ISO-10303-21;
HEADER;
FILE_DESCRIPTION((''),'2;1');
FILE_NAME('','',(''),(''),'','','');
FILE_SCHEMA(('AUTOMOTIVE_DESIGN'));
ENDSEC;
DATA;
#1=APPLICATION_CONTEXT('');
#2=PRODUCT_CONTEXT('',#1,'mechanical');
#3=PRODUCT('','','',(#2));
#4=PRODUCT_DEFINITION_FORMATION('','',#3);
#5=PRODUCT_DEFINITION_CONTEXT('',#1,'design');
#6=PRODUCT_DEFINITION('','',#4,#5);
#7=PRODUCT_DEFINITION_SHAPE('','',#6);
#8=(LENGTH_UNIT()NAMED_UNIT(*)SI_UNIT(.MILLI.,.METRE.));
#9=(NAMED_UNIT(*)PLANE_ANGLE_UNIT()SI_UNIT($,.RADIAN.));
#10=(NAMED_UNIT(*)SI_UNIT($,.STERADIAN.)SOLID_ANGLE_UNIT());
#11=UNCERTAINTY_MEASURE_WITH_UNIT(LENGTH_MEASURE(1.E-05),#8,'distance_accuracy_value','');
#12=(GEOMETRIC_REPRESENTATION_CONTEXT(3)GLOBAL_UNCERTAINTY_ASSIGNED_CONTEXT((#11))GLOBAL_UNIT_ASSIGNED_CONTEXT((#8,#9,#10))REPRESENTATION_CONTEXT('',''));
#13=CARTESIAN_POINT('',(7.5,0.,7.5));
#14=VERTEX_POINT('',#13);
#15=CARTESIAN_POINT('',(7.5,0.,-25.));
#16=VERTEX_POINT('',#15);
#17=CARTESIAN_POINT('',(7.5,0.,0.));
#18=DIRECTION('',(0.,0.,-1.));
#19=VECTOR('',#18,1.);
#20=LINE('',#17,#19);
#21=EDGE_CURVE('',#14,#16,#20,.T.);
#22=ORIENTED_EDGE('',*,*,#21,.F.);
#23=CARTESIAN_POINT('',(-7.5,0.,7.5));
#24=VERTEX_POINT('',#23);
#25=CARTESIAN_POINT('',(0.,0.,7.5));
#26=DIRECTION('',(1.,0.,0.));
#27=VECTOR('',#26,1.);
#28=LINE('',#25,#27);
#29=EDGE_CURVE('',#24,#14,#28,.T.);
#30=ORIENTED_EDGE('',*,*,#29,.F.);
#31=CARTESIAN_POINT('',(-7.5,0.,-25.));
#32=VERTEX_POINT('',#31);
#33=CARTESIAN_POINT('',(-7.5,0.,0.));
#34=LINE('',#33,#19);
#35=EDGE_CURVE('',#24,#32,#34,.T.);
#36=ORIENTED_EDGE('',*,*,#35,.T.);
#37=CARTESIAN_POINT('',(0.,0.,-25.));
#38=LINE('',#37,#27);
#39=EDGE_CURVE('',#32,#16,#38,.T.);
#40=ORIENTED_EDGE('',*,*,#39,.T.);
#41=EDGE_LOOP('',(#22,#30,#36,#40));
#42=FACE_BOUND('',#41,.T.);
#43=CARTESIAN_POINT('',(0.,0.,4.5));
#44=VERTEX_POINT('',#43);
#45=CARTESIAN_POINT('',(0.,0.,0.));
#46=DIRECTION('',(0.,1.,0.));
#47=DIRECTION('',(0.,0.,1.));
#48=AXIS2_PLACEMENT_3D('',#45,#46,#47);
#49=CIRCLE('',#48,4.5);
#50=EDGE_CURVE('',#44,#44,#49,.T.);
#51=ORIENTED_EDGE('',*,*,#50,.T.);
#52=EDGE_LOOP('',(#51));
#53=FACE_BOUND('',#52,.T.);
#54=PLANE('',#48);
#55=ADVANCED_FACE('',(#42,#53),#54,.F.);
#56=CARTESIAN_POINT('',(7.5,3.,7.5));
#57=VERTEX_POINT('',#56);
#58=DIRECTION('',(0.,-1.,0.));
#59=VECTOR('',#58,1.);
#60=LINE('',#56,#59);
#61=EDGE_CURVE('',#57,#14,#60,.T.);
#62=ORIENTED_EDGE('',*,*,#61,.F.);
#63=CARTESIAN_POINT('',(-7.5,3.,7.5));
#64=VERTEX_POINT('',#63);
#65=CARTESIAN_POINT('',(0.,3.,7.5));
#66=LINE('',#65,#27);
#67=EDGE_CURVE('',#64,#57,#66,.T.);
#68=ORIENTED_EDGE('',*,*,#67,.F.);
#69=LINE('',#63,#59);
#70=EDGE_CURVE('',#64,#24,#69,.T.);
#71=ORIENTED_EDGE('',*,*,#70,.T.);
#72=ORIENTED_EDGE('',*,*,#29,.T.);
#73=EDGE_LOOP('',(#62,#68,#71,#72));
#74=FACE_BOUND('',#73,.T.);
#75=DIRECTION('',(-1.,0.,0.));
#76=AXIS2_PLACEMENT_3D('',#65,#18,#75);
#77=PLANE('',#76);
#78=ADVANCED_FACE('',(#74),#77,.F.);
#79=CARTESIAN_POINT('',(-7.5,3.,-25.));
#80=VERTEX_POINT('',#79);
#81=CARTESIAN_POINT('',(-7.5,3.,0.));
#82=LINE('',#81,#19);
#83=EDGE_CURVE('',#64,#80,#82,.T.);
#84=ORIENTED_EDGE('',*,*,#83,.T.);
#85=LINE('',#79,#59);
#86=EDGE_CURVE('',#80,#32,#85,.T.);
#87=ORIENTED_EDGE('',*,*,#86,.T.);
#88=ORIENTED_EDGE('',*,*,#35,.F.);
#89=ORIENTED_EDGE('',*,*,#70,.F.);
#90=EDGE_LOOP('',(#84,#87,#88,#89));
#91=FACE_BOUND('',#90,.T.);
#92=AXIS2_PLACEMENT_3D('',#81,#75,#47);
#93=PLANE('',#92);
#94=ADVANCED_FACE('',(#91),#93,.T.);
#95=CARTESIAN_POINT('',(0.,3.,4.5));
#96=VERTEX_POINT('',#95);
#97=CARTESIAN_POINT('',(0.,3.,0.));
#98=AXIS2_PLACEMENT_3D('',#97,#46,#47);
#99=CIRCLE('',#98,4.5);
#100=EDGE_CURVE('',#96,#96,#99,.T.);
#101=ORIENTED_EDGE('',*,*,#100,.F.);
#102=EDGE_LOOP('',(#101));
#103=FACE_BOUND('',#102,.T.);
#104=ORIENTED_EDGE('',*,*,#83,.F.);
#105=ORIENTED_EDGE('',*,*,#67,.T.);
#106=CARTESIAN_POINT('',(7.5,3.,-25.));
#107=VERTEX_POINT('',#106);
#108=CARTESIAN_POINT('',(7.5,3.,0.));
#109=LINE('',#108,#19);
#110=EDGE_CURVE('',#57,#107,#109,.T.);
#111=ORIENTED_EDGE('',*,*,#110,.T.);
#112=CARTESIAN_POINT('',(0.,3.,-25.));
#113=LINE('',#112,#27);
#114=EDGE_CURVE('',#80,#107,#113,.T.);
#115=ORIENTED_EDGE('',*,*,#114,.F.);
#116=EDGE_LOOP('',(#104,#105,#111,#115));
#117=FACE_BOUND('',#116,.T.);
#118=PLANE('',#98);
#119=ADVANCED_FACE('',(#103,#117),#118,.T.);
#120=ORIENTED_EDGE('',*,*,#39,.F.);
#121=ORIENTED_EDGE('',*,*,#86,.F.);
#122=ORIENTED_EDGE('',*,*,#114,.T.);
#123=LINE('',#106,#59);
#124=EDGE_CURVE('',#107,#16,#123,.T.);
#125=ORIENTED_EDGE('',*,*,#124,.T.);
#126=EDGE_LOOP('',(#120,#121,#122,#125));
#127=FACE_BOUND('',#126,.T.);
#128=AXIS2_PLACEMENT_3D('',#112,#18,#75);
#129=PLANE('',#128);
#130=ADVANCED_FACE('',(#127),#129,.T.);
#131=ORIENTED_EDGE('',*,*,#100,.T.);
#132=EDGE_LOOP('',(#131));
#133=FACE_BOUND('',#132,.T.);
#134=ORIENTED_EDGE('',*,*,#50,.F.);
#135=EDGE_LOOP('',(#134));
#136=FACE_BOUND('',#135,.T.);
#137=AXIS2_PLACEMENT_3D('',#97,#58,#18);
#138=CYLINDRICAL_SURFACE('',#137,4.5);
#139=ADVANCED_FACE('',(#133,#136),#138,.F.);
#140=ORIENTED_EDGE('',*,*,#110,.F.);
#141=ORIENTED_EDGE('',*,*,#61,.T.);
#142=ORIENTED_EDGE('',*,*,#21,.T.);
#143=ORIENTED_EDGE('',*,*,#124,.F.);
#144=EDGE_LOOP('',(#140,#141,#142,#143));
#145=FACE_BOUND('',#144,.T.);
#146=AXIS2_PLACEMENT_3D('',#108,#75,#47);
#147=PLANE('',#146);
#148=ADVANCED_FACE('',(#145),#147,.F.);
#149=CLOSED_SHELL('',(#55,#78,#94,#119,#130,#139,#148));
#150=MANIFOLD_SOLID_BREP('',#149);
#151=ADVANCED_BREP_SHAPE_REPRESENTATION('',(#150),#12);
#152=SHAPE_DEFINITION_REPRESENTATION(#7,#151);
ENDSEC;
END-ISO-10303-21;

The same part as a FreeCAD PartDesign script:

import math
import FreeCAD as App
import Part
import Sketcher
from FreeCAD import Vector

doc = App.newDocument("Part")
body = doc.addObject("PartDesign::Body", "Body")

# Sketch on XZ plane
sketch1 = body.newObject("Sketcher::SketchObject", "Sketch")
sketch1.AttachmentSupport = (doc.getObject("XZ_Plane"), [""])
sketch1.MapMode = "FlatFace"
sketch1.addGeometry([
    Part.LineSegment(Vector(7.5, 7.5, 0), Vector(7.5, -25, 0)),  # 0
    Part.LineSegment(Vector(7.5, -25, 0), Vector(-7.5, -25, 0)),  # 1
    Part.LineSegment(Vector(-7.5, -25, 0), Vector(-7.5, 7.5, 0)),  # 2
    Part.LineSegment(Vector(-7.5, 7.5, 0), Vector(7.5, 7.5, 0)),  # 3
    Part.ArcOfCircle(Part.Circle(Vector(0, 0, 0), Vector(0, 0, 1), 4.5), math.radians(-90), math.radians(0)),  # 4
    Part.ArcOfCircle(Part.Circle(Vector(0, 0, 0), Vector(0, 0, 1), 4.5), math.radians(0), math.radians(270)),  # 5
], False)
sketch1.addConstraint([
    Sketcher.Constraint("Coincident", 0, 2, 1, 1),
    Sketcher.Constraint("Coincident", 1, 2, 2, 1),
    Sketcher.Constraint("Coincident", 2, 2, 3, 1),
    Sketcher.Constraint("Coincident", 3, 2, 0, 1),
    Sketcher.Constraint("Tangent", 4, 1, 5, 2),
    Sketcher.Constraint("Coincident", 5, 1, 4, 2),
    Sketcher.Constraint("Vertical", 0),
    Sketcher.Constraint("Horizontal", 1),
    Sketcher.Constraint("Vertical", 2),
    Sketcher.Constraint("Horizontal", 3),
    Sketcher.Constraint("Coincident", 4, 3, -1, 1),
    Sketcher.Constraint("PointOnObject", 4, 1, -2),
    Sketcher.Constraint("PointOnObject", 5, 1, -1),
    Sketcher.Constraint("Radius", 4, 4.5),
    Sketcher.Constraint("DistanceX", 1, 2, 1, 1, 15.0),
    Sketcher.Constraint("DistanceY", 0, 2, 0, 1, 32.5),
    Sketcher.Constraint("DistanceY", 0, 2, -1, 1, 25.0),
    Sketcher.Constraint("DistanceX", 5, 1, 3, 2, 3.0),
])
pad1 = body.newObject("PartDesign::Pad", "Pad")
pad1.Profile = sketch1
pad1.Length = 3
pad1.Reversed = True

doc.recompute()
